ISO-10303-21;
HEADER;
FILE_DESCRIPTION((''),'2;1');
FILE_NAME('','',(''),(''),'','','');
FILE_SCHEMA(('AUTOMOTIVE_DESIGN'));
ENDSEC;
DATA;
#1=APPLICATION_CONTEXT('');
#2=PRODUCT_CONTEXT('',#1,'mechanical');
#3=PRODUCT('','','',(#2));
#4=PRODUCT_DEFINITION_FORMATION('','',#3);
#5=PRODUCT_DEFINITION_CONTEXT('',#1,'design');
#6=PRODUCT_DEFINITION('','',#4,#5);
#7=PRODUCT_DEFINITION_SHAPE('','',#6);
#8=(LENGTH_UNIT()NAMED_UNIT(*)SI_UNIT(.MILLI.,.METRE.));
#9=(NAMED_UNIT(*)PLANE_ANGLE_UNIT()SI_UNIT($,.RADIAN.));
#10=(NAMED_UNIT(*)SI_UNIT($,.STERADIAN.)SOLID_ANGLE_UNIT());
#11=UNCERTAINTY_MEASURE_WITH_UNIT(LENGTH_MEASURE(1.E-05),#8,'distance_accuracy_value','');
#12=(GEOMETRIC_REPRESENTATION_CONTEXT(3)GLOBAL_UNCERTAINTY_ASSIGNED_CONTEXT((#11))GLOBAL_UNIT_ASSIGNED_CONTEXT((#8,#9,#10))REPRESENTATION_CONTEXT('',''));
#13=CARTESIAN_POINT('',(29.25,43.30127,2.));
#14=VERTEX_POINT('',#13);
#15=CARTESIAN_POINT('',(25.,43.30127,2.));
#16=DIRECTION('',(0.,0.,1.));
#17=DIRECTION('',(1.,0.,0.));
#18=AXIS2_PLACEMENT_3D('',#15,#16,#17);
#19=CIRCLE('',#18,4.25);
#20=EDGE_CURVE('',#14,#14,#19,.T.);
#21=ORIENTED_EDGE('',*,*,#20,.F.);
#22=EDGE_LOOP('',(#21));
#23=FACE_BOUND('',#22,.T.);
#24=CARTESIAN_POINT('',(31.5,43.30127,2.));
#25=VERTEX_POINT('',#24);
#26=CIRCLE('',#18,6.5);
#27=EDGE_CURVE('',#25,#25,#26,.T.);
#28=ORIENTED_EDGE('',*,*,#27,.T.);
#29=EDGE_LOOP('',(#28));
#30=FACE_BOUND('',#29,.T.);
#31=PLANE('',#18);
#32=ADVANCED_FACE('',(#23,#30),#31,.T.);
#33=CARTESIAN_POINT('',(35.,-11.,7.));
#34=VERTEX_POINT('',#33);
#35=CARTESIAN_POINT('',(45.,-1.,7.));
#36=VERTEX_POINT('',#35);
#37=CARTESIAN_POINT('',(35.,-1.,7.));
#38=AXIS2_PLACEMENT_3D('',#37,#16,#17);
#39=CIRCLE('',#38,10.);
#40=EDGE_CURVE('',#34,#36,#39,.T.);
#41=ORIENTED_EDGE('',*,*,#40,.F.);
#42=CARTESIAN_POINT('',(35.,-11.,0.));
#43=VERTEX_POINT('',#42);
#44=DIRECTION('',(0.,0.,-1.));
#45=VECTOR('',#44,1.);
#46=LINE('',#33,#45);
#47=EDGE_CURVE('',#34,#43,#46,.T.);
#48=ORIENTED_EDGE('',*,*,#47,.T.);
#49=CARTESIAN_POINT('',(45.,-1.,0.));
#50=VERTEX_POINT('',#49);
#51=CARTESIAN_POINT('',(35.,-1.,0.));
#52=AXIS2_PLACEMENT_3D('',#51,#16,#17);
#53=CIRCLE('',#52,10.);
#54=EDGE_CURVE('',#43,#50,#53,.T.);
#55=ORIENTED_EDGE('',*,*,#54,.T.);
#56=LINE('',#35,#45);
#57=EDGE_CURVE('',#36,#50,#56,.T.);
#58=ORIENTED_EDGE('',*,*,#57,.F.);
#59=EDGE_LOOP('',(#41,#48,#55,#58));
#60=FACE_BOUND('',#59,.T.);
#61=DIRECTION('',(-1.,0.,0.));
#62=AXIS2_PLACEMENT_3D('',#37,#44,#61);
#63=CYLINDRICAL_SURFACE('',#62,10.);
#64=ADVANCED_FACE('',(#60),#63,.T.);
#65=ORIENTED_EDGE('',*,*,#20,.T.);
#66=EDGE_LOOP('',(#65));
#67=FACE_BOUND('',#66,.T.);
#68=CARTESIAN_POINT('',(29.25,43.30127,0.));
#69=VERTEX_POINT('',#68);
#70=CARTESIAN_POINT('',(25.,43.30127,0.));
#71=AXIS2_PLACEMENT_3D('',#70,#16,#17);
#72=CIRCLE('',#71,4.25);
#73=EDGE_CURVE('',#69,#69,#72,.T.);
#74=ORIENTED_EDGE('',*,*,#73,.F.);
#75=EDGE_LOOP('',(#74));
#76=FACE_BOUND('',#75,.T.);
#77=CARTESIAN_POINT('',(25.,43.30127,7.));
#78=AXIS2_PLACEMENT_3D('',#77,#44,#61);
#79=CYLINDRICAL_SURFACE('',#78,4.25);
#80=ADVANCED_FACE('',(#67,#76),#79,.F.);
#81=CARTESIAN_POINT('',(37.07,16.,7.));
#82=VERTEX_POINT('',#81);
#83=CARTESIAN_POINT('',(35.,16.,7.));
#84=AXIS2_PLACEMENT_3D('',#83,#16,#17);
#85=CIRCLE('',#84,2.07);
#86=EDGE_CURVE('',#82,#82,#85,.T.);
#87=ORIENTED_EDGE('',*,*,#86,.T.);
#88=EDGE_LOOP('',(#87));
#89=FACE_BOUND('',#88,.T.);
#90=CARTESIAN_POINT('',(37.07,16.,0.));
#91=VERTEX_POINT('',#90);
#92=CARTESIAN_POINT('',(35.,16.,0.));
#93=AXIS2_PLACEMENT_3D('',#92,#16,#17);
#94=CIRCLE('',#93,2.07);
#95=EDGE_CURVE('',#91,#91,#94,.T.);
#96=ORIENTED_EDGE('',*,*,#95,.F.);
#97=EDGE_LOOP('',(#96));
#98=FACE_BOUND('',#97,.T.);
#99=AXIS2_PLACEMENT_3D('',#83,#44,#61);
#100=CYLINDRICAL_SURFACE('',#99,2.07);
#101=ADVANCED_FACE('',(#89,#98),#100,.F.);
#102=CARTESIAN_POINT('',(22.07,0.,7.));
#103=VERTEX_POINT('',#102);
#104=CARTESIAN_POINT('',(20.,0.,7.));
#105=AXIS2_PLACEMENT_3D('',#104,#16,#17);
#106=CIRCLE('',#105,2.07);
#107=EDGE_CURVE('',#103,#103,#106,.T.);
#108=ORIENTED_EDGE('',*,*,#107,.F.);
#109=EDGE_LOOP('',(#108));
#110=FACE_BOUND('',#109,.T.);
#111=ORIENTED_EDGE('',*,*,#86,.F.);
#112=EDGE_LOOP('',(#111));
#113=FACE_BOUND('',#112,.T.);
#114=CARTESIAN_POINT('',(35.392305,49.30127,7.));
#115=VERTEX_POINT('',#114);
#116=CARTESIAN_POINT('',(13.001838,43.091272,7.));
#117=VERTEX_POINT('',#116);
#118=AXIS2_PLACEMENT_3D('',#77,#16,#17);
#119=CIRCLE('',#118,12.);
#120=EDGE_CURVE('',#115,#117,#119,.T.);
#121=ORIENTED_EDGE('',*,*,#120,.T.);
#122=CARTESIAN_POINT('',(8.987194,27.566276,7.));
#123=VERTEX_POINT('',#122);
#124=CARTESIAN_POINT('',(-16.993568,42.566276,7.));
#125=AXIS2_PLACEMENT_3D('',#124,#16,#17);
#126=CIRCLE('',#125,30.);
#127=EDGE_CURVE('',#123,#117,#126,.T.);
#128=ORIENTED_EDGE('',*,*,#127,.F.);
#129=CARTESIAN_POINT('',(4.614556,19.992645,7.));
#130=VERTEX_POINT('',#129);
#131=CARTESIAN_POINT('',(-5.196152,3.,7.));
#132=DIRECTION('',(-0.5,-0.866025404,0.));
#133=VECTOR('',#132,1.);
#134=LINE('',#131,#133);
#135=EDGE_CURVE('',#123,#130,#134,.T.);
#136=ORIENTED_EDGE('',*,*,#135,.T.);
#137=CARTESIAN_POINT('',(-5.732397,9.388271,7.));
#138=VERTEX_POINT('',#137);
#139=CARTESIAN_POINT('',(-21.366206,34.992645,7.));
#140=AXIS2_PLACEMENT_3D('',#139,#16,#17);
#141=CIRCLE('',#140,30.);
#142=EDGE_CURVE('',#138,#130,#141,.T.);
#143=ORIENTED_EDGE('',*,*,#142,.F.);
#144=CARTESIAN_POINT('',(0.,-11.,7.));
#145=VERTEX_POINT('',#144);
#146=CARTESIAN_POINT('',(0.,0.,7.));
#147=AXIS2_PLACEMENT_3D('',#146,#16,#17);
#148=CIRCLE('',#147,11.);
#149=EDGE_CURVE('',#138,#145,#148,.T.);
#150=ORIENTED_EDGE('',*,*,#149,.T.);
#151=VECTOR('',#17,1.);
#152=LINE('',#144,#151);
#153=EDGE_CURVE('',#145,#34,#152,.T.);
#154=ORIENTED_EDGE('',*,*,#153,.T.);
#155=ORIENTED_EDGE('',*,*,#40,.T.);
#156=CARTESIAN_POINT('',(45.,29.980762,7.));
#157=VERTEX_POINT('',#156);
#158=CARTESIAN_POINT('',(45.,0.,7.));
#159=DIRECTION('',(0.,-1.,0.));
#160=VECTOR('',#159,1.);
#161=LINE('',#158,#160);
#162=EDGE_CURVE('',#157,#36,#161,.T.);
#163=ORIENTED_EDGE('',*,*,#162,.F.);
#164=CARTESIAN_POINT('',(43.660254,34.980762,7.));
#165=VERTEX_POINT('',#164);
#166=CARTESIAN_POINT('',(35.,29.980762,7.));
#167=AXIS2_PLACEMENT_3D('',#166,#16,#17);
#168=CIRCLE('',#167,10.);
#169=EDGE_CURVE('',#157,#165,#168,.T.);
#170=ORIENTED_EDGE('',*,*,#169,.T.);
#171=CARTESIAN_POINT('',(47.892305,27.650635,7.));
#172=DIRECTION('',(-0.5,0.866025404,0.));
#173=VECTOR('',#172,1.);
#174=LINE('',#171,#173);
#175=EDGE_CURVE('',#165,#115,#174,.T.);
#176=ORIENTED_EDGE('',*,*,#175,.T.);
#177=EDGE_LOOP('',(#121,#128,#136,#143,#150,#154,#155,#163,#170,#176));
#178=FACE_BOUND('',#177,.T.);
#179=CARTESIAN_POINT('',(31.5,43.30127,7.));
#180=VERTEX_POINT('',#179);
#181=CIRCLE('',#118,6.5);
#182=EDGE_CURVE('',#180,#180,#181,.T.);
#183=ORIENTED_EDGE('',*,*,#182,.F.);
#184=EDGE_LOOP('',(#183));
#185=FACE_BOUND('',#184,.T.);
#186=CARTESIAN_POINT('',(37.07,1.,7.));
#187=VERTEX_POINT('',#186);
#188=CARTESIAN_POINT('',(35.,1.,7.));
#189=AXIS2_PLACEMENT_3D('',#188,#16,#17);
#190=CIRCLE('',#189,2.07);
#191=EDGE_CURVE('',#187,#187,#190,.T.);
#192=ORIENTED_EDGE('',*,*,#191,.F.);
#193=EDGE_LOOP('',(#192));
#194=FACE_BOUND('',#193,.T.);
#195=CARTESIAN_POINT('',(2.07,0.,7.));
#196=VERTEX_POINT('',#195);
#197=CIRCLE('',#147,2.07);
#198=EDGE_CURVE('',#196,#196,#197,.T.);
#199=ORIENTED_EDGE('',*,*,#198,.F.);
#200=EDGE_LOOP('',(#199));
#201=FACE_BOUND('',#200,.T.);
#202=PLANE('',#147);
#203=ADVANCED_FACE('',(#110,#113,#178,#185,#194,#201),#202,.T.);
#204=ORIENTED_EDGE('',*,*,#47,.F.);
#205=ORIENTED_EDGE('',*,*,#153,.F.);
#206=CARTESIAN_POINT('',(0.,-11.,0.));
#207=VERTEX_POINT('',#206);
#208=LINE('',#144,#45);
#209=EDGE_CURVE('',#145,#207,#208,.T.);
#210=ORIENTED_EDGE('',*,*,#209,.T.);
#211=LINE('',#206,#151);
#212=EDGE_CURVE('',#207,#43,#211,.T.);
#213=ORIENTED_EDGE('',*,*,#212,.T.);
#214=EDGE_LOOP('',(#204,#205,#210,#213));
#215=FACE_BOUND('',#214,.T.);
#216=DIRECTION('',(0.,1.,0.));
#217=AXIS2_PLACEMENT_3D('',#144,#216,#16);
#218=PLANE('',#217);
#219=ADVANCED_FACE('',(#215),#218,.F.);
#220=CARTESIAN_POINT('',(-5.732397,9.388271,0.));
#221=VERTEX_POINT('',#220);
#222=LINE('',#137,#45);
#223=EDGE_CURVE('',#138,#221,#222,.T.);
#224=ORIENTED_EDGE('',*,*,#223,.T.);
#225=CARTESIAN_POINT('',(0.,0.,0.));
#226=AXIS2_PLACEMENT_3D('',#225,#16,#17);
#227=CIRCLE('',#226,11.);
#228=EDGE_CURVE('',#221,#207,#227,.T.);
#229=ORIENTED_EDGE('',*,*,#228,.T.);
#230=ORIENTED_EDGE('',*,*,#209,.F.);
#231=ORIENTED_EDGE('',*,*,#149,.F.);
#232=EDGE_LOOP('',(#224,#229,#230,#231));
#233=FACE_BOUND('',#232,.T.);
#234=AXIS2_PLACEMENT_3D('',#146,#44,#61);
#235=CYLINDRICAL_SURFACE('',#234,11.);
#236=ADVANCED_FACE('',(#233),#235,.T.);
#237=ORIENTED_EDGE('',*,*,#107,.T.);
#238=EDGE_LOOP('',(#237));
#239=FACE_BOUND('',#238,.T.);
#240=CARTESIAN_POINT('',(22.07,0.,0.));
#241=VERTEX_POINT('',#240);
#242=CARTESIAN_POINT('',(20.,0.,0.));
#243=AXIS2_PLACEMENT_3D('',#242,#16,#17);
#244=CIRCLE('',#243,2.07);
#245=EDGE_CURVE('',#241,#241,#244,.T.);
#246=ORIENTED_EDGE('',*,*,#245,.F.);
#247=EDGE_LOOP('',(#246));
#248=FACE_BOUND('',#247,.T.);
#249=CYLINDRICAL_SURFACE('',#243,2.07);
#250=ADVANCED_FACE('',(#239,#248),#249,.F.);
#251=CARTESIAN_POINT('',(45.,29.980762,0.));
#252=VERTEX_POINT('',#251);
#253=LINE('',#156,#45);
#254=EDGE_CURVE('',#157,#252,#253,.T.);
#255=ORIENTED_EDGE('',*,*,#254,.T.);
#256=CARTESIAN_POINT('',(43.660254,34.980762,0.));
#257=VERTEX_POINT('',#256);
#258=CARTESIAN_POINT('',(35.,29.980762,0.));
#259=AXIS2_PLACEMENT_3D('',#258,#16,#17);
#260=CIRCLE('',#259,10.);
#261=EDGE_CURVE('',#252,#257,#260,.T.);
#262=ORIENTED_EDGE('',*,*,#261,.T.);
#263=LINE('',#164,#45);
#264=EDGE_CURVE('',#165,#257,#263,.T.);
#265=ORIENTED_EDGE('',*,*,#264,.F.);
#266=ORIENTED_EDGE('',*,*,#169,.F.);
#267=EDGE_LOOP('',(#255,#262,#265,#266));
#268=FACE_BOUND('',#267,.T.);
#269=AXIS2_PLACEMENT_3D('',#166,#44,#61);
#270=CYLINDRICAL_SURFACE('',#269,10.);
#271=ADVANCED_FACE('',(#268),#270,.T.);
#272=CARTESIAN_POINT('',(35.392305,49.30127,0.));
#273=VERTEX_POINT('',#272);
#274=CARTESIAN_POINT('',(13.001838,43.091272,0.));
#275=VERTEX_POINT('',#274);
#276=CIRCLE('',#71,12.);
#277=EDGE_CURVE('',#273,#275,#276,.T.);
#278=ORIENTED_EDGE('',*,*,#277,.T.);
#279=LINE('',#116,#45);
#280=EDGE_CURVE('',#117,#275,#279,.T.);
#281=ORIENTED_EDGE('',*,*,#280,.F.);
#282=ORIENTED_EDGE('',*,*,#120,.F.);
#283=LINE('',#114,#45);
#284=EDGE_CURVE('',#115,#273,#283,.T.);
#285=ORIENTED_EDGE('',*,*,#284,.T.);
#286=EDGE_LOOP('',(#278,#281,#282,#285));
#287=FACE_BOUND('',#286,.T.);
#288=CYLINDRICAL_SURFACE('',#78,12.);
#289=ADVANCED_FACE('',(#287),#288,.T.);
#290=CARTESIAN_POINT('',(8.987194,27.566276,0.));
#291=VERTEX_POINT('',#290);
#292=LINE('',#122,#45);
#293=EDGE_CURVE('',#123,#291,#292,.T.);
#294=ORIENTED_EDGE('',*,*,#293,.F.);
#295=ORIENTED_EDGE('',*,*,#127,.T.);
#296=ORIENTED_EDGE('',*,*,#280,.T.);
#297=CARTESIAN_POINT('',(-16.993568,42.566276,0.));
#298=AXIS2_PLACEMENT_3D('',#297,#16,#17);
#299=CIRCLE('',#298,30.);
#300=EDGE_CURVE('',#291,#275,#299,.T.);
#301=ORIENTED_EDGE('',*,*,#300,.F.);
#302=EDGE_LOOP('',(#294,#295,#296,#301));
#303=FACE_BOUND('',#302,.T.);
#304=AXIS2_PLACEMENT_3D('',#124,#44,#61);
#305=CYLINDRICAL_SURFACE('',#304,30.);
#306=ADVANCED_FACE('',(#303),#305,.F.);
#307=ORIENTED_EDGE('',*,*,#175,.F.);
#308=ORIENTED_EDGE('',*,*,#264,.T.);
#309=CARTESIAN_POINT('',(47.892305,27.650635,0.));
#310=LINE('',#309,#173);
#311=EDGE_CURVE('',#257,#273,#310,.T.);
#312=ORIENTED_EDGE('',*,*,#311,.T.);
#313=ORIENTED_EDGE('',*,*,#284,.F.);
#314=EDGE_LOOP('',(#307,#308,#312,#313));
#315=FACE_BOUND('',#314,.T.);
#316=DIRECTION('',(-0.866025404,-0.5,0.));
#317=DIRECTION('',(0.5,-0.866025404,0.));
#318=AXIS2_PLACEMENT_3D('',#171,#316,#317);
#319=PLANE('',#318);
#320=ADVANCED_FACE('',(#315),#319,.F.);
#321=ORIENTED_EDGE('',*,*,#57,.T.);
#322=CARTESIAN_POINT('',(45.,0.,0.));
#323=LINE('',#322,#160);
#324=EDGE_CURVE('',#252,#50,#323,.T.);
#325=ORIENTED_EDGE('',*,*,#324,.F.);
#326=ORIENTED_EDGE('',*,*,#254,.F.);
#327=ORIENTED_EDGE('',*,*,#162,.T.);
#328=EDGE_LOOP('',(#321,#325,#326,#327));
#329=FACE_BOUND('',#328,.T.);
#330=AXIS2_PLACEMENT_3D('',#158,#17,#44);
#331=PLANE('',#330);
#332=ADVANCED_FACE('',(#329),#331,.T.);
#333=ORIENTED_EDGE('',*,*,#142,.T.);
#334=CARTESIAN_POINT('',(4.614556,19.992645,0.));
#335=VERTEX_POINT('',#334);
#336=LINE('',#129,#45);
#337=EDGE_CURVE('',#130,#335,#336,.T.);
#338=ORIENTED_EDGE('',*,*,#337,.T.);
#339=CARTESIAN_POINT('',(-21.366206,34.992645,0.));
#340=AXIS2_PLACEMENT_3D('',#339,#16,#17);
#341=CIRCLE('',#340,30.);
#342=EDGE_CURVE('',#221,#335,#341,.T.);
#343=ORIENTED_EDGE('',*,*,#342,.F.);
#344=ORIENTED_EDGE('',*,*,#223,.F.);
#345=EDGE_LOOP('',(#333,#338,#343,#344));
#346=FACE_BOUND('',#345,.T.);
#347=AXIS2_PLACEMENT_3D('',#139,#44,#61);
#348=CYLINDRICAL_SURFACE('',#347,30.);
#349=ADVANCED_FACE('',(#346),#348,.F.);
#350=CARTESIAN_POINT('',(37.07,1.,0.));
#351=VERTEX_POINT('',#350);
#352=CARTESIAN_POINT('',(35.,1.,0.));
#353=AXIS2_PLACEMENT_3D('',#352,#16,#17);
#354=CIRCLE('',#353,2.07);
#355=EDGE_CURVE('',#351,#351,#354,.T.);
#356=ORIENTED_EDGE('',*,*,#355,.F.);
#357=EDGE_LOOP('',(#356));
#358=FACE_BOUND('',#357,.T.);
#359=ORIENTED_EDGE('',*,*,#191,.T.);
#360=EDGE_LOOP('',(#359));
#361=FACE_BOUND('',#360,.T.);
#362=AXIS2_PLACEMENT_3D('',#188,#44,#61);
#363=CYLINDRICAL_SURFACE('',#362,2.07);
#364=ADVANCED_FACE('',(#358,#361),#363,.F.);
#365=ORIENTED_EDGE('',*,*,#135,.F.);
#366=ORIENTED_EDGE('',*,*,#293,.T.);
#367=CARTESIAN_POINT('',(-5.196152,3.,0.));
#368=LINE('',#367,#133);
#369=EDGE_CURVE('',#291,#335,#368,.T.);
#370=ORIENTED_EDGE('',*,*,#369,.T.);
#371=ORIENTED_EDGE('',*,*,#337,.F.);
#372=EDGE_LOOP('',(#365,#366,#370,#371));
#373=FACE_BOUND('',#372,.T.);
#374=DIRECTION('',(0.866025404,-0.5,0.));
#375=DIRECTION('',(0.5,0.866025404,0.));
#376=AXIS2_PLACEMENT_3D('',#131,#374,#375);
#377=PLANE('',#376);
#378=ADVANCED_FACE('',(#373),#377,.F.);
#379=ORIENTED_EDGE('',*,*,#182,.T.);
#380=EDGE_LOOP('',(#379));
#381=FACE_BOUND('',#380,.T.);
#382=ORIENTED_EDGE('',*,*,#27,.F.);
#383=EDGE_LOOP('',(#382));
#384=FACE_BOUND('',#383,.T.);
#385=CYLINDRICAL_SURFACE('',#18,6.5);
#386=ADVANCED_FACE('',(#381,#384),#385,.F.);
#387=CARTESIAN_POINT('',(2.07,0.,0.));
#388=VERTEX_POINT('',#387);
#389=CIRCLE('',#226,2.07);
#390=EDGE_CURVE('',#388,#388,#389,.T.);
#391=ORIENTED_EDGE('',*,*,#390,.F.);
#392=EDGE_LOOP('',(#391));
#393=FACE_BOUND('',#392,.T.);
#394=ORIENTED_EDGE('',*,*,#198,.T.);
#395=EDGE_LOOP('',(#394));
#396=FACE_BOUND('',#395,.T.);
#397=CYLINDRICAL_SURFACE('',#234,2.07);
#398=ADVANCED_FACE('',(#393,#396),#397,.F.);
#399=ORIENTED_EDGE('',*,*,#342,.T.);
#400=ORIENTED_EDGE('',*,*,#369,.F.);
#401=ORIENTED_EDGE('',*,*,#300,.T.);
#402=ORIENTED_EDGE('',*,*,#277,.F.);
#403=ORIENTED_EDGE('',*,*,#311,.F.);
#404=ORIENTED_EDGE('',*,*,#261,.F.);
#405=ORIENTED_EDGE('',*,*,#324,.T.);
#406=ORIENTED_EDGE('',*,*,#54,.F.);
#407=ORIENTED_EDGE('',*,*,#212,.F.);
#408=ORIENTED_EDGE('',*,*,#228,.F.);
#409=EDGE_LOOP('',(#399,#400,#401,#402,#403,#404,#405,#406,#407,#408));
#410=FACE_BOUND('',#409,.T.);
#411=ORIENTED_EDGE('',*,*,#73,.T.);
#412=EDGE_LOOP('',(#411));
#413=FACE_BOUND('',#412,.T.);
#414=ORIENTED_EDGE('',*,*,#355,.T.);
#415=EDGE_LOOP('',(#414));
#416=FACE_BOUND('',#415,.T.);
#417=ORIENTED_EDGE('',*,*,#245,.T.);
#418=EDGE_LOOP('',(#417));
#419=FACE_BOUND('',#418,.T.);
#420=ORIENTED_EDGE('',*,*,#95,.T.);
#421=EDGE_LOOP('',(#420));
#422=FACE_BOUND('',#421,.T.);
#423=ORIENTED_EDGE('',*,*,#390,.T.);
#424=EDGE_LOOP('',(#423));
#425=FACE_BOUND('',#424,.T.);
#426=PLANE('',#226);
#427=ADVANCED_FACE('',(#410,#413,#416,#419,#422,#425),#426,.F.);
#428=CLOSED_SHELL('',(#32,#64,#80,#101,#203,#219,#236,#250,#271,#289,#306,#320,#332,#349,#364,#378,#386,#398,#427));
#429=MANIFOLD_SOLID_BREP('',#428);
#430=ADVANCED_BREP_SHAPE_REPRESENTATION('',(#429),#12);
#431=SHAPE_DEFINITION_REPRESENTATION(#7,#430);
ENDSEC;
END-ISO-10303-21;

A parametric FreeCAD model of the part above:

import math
import FreeCAD as App
import Part
import Sketcher

V = App.Vector
Q = App.Units.Quantity

doc = App.newDocument("Part")
body = doc.addObject("PartDesign::Body", "Body")

# Sketch on XY plane
sketch1 = body.newObject("Sketcher::SketchObject", "Sketch")
sketch1.AttachmentSupport = (doc.getObject("XY_Plane"), [""])
sketch1.MapMode = "FlatFace"
sketch1.addGeometry([
    Part.ArcOfCircle(Part.Circle(V(-17, 42.6, 0), V(0, 0, 1), 30), math.radians(-30), math.radians(1)),  # 0
    Part.LineSegment(V(9, 27.6, 0), V(4.6, 20, 0)),  # 1
    Part.ArcOfCircle(Part.Circle(V(-21.4, 35, 0), V(0, 0, 1), 30), math.radians(-59), math.radians(-30)),  # 2
    Part.ArcOfCircle(Part.Circle(V(0, 0, 0), V(0, 0, 1), 11), math.radians(121), math.radians(270)),  # 3
    Part.LineSegment(V(0, -11, 0), V(35, -11, 0)),  # 4
    Part.ArcOfCircle(Part.Circle(V(35, -1, 0), V(0, 0, 1), 10), math.radians(-90), math.radians(0)),  # 5
    Part.LineSegment(V(45, -1, 0), V(45, 30, 0)),  # 6
    Part.ArcOfCircle(Part.Circle(V(35, 30, 0), V(0, 0, 1), 10), math.radians(0), math.radians(30)),  # 7
    Part.LineSegment(V(43.7, 35, 0), V(35.4, 49.3, 0)),  # 8
    Part.ArcOfCircle(Part.Circle(V(25, 43.3, 0), V(0, 0, 1), 12), math.radians(30), math.radians(90)),  # 9
    Part.ArcOfCircle(Part.Circle(V(25, 43.3, 0), V(0, 0, 1), 12), math.radians(90), math.radians(181)),  # 10
    Part.Circle(V(0, 0, 0), V(0, 0, 1), 2.1),  # 11
    Part.Circle(V(35, 1, 0), V(0, 0, 1), 2.1),  # 12
    Part.Circle(V(35, 16, 0), V(0, 0, 1), 2.1),  # 13
    Part.Circle(V(25, 43.3, 0), V(0, 0, 1), 4.2),  # 14
], False)
sketch1.addConstraint([
    Sketcher.Constraint("Tangent", 0, 1, 1, 1),
    Sketcher.Constraint("Tangent", 1, 2, 2, 2),
    Sketcher.Constraint("Tangent", 2, 1, 3, 1),
    Sketcher.Constraint("Tangent", 3, 2, 4, 1),
    Sketcher.Constraint("Tangent", 4, 2, 5, 1),
    Sketcher.Constraint("Tangent", 5, 2, 6, 1),
    Sketcher.Constraint("Tangent", 6, 2, 7, 1),
    Sketcher.Constraint("Tangent", 7, 2, 8, 1),
    Sketcher.Constraint("Tangent", 8, 2, 9, 1),
    Sketcher.Constraint("Tangent", 9, 2, 10, 1),
    Sketcher.Constraint("Tangent", 10, 2, 0, 2),
    Sketcher.Constraint("Horizontal", 4),
    Sketcher.Constraint("Vertical", 6),
    Sketcher.Constraint("Coincident", 3, 3, -1, 1),
    Sketcher.Constraint("Coincident", 11, 3, -1, 1),
    Sketcher.Constraint("Coincident", 14, 3, 9, 3),
    Sketcher.Constraint("Equal", 0, 2),
    Sketcher.Constraint("Equal", 5, 7),
    Sketcher.Constraint("Equal", 9, 10),
    Sketcher.Constraint("Equal", 11, 12),
    Sketcher.Constraint("Equal", 12, 13),
    Sketcher.Constraint("Symmetric", 5, 3, 12, 3, -1),
    Sketcher.Constraint("Vertical", 12, 3, 13, 3),
    Sketcher.Constraint("Vertical", 14, 3, 9, 2),
    Sketcher.Constraint("Radius", 0, Q("30 mm")),
    Sketcher.Constraint("Radius", 3, Q("11 mm")),
    Sketcher.Constraint("Radius", 5, Q("10 mm")),
    Sketcher.Constraint("Radius", 9, Q("12 mm")),
    Sketcher.Constraint("Diameter", 14, Q("8.5 mm")),
    Sketcher.Constraint("Diameter", 11, Q("4.14 mm")),
    Sketcher.Constraint("DistanceX", 4, 1, 4, 2, Q("35 mm")),
    Sketcher.Constraint("Angle", 1, Q("-120 deg")),
    Sketcher.Constraint("Angle", 8, Q("120 deg")),
    Sketcher.Constraint("DistanceX", -1, 1, 9, 3, Q("25 mm")),
    Sketcher.Constraint("DistanceY", -1, 1, 13, 3, Q("16 mm")),
    Sketcher.Constraint("DistanceY", 10, 2, 10, 3, Q("0.209998 mm")),
    Sketcher.Constraint("DistanceY", 6, 1, 6, 2, Q("30.980762 mm")),
])
pad1 = body.newObject("PartDesign::Pad", "Pad")
pad1.Profile = sketch1
pad1.Length = 7

# Sketch on XY plane
sketch2 = body.newObject("Sketcher::SketchObject", "Sketch001")
sketch2.AttachmentSupport = (doc.getObject("XY_Plane"), [""])
sketch2.MapMode = "FlatFace"
sketch2.AttachmentOffset = App.Placement(V(0, 0, 7), App.Rotation())
sketch2.addGeometry(Part.Circle(V(25, 43, 0), V(0, 0, 1), 6), False)
sketch2.addConstraint([
    Sketcher.Constraint("Diameter", 0, Q("13 mm")),
    Sketcher.Constraint("DistanceX", -1, 1, 0, 3, Q("25 mm")),
    Sketcher.Constraint("DistanceY", -1, 1, 0, 3, Q("43.30127 mm")),
])
pocket1 = body.newObject("PartDesign::Pocket", "Pocket")
pocket1.Profile = sketch2
pocket1.Length = 5

# Sketch on XY plane
sketch3 = body.newObject("Sketcher::SketchObject", "Sketch002")
sketch3.AttachmentSupport = (doc.getObject("XY_Plane"), [""])
sketch3.MapMode = "FlatFace"
sketch3.AttachmentOffset = App.Placement(V(0, 0, 7), App.Rotation())
sketch3.addGeometry(Part.Circle(V(20, 0, 0), V(0, 0, 1), 2.1), False)
sketch3.addConstraint([
    Sketcher.Constraint("PointOnObject", 0, 3, -1),
    Sketcher.Constraint("Diameter", 0, Q("4.14 mm")),
    Sketcher.Constraint("DistanceX", -1, 1, 0, 3, Q("20 mm")),
])
pocket2 = body.newObject("PartDesign::Pocket", "Pocket001")
pocket2.Profile = sketch3
pocket2.Type = "ThroughAll"

doc.recompute()
